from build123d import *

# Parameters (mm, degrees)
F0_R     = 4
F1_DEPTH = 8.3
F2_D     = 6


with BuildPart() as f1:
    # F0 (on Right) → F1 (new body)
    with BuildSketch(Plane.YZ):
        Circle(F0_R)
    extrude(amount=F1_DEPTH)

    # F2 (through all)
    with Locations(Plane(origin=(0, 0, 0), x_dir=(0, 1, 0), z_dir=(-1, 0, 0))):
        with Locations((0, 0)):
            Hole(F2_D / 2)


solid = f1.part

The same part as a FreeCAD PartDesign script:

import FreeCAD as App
import Part
import Sketcher

doc = App.newDocument("Part")
body = doc.addObject("PartDesign::Body", "Body")

# Sketch on YZ plane
sketch1 = body.newObject("Sketcher::SketchObject", "Sketch")
sketch1.AttachmentSupport = (doc.getObject("YZ_Plane"), [""])
sketch1.MapMode = "FlatFace"
sketch1.addGeometry(Part.Circle(App.Vector(0, 0, 0), App.Vector(0, 0, 1), 4), False)
sketch1.addConstraint([
    Sketcher.Constraint("Coincident", 0, 3, -1, 1),
    Sketcher.Constraint("Diameter", 0, 8.0),
])
pad1 = body.newObject("PartDesign::Pad", "Pad")
pad1.Profile = sketch1
pad1.Length = 8.3

# Sketch on YZ plane
sketch2 = body.newObject("Sketcher::SketchObject", "Sketch001")
sketch2.AttachmentSupport = (doc.getObject("YZ_Plane"), [""])
sketch2.MapMode = "FlatFace"
sketch2.addGeometry(Part.Circle(App.Vector(0, 0, 0), App.Vector(0, 0, 1), 3), False)
sketch2.addConstraint([
    Sketcher.Constraint("Coincident", 0, 3, -1, 1),
    Sketcher.Constraint("Diameter", 0, 6.0),
])
doc.recompute()
hole = body.newObject("PartDesign::Hole", "Hole")
hole.Profile = sketch2
hole.ThreadType = "None"
hole.Diameter = 6
hole.DepthType = "ThroughAll"
hole.Reversed = True

doc.recompute()
